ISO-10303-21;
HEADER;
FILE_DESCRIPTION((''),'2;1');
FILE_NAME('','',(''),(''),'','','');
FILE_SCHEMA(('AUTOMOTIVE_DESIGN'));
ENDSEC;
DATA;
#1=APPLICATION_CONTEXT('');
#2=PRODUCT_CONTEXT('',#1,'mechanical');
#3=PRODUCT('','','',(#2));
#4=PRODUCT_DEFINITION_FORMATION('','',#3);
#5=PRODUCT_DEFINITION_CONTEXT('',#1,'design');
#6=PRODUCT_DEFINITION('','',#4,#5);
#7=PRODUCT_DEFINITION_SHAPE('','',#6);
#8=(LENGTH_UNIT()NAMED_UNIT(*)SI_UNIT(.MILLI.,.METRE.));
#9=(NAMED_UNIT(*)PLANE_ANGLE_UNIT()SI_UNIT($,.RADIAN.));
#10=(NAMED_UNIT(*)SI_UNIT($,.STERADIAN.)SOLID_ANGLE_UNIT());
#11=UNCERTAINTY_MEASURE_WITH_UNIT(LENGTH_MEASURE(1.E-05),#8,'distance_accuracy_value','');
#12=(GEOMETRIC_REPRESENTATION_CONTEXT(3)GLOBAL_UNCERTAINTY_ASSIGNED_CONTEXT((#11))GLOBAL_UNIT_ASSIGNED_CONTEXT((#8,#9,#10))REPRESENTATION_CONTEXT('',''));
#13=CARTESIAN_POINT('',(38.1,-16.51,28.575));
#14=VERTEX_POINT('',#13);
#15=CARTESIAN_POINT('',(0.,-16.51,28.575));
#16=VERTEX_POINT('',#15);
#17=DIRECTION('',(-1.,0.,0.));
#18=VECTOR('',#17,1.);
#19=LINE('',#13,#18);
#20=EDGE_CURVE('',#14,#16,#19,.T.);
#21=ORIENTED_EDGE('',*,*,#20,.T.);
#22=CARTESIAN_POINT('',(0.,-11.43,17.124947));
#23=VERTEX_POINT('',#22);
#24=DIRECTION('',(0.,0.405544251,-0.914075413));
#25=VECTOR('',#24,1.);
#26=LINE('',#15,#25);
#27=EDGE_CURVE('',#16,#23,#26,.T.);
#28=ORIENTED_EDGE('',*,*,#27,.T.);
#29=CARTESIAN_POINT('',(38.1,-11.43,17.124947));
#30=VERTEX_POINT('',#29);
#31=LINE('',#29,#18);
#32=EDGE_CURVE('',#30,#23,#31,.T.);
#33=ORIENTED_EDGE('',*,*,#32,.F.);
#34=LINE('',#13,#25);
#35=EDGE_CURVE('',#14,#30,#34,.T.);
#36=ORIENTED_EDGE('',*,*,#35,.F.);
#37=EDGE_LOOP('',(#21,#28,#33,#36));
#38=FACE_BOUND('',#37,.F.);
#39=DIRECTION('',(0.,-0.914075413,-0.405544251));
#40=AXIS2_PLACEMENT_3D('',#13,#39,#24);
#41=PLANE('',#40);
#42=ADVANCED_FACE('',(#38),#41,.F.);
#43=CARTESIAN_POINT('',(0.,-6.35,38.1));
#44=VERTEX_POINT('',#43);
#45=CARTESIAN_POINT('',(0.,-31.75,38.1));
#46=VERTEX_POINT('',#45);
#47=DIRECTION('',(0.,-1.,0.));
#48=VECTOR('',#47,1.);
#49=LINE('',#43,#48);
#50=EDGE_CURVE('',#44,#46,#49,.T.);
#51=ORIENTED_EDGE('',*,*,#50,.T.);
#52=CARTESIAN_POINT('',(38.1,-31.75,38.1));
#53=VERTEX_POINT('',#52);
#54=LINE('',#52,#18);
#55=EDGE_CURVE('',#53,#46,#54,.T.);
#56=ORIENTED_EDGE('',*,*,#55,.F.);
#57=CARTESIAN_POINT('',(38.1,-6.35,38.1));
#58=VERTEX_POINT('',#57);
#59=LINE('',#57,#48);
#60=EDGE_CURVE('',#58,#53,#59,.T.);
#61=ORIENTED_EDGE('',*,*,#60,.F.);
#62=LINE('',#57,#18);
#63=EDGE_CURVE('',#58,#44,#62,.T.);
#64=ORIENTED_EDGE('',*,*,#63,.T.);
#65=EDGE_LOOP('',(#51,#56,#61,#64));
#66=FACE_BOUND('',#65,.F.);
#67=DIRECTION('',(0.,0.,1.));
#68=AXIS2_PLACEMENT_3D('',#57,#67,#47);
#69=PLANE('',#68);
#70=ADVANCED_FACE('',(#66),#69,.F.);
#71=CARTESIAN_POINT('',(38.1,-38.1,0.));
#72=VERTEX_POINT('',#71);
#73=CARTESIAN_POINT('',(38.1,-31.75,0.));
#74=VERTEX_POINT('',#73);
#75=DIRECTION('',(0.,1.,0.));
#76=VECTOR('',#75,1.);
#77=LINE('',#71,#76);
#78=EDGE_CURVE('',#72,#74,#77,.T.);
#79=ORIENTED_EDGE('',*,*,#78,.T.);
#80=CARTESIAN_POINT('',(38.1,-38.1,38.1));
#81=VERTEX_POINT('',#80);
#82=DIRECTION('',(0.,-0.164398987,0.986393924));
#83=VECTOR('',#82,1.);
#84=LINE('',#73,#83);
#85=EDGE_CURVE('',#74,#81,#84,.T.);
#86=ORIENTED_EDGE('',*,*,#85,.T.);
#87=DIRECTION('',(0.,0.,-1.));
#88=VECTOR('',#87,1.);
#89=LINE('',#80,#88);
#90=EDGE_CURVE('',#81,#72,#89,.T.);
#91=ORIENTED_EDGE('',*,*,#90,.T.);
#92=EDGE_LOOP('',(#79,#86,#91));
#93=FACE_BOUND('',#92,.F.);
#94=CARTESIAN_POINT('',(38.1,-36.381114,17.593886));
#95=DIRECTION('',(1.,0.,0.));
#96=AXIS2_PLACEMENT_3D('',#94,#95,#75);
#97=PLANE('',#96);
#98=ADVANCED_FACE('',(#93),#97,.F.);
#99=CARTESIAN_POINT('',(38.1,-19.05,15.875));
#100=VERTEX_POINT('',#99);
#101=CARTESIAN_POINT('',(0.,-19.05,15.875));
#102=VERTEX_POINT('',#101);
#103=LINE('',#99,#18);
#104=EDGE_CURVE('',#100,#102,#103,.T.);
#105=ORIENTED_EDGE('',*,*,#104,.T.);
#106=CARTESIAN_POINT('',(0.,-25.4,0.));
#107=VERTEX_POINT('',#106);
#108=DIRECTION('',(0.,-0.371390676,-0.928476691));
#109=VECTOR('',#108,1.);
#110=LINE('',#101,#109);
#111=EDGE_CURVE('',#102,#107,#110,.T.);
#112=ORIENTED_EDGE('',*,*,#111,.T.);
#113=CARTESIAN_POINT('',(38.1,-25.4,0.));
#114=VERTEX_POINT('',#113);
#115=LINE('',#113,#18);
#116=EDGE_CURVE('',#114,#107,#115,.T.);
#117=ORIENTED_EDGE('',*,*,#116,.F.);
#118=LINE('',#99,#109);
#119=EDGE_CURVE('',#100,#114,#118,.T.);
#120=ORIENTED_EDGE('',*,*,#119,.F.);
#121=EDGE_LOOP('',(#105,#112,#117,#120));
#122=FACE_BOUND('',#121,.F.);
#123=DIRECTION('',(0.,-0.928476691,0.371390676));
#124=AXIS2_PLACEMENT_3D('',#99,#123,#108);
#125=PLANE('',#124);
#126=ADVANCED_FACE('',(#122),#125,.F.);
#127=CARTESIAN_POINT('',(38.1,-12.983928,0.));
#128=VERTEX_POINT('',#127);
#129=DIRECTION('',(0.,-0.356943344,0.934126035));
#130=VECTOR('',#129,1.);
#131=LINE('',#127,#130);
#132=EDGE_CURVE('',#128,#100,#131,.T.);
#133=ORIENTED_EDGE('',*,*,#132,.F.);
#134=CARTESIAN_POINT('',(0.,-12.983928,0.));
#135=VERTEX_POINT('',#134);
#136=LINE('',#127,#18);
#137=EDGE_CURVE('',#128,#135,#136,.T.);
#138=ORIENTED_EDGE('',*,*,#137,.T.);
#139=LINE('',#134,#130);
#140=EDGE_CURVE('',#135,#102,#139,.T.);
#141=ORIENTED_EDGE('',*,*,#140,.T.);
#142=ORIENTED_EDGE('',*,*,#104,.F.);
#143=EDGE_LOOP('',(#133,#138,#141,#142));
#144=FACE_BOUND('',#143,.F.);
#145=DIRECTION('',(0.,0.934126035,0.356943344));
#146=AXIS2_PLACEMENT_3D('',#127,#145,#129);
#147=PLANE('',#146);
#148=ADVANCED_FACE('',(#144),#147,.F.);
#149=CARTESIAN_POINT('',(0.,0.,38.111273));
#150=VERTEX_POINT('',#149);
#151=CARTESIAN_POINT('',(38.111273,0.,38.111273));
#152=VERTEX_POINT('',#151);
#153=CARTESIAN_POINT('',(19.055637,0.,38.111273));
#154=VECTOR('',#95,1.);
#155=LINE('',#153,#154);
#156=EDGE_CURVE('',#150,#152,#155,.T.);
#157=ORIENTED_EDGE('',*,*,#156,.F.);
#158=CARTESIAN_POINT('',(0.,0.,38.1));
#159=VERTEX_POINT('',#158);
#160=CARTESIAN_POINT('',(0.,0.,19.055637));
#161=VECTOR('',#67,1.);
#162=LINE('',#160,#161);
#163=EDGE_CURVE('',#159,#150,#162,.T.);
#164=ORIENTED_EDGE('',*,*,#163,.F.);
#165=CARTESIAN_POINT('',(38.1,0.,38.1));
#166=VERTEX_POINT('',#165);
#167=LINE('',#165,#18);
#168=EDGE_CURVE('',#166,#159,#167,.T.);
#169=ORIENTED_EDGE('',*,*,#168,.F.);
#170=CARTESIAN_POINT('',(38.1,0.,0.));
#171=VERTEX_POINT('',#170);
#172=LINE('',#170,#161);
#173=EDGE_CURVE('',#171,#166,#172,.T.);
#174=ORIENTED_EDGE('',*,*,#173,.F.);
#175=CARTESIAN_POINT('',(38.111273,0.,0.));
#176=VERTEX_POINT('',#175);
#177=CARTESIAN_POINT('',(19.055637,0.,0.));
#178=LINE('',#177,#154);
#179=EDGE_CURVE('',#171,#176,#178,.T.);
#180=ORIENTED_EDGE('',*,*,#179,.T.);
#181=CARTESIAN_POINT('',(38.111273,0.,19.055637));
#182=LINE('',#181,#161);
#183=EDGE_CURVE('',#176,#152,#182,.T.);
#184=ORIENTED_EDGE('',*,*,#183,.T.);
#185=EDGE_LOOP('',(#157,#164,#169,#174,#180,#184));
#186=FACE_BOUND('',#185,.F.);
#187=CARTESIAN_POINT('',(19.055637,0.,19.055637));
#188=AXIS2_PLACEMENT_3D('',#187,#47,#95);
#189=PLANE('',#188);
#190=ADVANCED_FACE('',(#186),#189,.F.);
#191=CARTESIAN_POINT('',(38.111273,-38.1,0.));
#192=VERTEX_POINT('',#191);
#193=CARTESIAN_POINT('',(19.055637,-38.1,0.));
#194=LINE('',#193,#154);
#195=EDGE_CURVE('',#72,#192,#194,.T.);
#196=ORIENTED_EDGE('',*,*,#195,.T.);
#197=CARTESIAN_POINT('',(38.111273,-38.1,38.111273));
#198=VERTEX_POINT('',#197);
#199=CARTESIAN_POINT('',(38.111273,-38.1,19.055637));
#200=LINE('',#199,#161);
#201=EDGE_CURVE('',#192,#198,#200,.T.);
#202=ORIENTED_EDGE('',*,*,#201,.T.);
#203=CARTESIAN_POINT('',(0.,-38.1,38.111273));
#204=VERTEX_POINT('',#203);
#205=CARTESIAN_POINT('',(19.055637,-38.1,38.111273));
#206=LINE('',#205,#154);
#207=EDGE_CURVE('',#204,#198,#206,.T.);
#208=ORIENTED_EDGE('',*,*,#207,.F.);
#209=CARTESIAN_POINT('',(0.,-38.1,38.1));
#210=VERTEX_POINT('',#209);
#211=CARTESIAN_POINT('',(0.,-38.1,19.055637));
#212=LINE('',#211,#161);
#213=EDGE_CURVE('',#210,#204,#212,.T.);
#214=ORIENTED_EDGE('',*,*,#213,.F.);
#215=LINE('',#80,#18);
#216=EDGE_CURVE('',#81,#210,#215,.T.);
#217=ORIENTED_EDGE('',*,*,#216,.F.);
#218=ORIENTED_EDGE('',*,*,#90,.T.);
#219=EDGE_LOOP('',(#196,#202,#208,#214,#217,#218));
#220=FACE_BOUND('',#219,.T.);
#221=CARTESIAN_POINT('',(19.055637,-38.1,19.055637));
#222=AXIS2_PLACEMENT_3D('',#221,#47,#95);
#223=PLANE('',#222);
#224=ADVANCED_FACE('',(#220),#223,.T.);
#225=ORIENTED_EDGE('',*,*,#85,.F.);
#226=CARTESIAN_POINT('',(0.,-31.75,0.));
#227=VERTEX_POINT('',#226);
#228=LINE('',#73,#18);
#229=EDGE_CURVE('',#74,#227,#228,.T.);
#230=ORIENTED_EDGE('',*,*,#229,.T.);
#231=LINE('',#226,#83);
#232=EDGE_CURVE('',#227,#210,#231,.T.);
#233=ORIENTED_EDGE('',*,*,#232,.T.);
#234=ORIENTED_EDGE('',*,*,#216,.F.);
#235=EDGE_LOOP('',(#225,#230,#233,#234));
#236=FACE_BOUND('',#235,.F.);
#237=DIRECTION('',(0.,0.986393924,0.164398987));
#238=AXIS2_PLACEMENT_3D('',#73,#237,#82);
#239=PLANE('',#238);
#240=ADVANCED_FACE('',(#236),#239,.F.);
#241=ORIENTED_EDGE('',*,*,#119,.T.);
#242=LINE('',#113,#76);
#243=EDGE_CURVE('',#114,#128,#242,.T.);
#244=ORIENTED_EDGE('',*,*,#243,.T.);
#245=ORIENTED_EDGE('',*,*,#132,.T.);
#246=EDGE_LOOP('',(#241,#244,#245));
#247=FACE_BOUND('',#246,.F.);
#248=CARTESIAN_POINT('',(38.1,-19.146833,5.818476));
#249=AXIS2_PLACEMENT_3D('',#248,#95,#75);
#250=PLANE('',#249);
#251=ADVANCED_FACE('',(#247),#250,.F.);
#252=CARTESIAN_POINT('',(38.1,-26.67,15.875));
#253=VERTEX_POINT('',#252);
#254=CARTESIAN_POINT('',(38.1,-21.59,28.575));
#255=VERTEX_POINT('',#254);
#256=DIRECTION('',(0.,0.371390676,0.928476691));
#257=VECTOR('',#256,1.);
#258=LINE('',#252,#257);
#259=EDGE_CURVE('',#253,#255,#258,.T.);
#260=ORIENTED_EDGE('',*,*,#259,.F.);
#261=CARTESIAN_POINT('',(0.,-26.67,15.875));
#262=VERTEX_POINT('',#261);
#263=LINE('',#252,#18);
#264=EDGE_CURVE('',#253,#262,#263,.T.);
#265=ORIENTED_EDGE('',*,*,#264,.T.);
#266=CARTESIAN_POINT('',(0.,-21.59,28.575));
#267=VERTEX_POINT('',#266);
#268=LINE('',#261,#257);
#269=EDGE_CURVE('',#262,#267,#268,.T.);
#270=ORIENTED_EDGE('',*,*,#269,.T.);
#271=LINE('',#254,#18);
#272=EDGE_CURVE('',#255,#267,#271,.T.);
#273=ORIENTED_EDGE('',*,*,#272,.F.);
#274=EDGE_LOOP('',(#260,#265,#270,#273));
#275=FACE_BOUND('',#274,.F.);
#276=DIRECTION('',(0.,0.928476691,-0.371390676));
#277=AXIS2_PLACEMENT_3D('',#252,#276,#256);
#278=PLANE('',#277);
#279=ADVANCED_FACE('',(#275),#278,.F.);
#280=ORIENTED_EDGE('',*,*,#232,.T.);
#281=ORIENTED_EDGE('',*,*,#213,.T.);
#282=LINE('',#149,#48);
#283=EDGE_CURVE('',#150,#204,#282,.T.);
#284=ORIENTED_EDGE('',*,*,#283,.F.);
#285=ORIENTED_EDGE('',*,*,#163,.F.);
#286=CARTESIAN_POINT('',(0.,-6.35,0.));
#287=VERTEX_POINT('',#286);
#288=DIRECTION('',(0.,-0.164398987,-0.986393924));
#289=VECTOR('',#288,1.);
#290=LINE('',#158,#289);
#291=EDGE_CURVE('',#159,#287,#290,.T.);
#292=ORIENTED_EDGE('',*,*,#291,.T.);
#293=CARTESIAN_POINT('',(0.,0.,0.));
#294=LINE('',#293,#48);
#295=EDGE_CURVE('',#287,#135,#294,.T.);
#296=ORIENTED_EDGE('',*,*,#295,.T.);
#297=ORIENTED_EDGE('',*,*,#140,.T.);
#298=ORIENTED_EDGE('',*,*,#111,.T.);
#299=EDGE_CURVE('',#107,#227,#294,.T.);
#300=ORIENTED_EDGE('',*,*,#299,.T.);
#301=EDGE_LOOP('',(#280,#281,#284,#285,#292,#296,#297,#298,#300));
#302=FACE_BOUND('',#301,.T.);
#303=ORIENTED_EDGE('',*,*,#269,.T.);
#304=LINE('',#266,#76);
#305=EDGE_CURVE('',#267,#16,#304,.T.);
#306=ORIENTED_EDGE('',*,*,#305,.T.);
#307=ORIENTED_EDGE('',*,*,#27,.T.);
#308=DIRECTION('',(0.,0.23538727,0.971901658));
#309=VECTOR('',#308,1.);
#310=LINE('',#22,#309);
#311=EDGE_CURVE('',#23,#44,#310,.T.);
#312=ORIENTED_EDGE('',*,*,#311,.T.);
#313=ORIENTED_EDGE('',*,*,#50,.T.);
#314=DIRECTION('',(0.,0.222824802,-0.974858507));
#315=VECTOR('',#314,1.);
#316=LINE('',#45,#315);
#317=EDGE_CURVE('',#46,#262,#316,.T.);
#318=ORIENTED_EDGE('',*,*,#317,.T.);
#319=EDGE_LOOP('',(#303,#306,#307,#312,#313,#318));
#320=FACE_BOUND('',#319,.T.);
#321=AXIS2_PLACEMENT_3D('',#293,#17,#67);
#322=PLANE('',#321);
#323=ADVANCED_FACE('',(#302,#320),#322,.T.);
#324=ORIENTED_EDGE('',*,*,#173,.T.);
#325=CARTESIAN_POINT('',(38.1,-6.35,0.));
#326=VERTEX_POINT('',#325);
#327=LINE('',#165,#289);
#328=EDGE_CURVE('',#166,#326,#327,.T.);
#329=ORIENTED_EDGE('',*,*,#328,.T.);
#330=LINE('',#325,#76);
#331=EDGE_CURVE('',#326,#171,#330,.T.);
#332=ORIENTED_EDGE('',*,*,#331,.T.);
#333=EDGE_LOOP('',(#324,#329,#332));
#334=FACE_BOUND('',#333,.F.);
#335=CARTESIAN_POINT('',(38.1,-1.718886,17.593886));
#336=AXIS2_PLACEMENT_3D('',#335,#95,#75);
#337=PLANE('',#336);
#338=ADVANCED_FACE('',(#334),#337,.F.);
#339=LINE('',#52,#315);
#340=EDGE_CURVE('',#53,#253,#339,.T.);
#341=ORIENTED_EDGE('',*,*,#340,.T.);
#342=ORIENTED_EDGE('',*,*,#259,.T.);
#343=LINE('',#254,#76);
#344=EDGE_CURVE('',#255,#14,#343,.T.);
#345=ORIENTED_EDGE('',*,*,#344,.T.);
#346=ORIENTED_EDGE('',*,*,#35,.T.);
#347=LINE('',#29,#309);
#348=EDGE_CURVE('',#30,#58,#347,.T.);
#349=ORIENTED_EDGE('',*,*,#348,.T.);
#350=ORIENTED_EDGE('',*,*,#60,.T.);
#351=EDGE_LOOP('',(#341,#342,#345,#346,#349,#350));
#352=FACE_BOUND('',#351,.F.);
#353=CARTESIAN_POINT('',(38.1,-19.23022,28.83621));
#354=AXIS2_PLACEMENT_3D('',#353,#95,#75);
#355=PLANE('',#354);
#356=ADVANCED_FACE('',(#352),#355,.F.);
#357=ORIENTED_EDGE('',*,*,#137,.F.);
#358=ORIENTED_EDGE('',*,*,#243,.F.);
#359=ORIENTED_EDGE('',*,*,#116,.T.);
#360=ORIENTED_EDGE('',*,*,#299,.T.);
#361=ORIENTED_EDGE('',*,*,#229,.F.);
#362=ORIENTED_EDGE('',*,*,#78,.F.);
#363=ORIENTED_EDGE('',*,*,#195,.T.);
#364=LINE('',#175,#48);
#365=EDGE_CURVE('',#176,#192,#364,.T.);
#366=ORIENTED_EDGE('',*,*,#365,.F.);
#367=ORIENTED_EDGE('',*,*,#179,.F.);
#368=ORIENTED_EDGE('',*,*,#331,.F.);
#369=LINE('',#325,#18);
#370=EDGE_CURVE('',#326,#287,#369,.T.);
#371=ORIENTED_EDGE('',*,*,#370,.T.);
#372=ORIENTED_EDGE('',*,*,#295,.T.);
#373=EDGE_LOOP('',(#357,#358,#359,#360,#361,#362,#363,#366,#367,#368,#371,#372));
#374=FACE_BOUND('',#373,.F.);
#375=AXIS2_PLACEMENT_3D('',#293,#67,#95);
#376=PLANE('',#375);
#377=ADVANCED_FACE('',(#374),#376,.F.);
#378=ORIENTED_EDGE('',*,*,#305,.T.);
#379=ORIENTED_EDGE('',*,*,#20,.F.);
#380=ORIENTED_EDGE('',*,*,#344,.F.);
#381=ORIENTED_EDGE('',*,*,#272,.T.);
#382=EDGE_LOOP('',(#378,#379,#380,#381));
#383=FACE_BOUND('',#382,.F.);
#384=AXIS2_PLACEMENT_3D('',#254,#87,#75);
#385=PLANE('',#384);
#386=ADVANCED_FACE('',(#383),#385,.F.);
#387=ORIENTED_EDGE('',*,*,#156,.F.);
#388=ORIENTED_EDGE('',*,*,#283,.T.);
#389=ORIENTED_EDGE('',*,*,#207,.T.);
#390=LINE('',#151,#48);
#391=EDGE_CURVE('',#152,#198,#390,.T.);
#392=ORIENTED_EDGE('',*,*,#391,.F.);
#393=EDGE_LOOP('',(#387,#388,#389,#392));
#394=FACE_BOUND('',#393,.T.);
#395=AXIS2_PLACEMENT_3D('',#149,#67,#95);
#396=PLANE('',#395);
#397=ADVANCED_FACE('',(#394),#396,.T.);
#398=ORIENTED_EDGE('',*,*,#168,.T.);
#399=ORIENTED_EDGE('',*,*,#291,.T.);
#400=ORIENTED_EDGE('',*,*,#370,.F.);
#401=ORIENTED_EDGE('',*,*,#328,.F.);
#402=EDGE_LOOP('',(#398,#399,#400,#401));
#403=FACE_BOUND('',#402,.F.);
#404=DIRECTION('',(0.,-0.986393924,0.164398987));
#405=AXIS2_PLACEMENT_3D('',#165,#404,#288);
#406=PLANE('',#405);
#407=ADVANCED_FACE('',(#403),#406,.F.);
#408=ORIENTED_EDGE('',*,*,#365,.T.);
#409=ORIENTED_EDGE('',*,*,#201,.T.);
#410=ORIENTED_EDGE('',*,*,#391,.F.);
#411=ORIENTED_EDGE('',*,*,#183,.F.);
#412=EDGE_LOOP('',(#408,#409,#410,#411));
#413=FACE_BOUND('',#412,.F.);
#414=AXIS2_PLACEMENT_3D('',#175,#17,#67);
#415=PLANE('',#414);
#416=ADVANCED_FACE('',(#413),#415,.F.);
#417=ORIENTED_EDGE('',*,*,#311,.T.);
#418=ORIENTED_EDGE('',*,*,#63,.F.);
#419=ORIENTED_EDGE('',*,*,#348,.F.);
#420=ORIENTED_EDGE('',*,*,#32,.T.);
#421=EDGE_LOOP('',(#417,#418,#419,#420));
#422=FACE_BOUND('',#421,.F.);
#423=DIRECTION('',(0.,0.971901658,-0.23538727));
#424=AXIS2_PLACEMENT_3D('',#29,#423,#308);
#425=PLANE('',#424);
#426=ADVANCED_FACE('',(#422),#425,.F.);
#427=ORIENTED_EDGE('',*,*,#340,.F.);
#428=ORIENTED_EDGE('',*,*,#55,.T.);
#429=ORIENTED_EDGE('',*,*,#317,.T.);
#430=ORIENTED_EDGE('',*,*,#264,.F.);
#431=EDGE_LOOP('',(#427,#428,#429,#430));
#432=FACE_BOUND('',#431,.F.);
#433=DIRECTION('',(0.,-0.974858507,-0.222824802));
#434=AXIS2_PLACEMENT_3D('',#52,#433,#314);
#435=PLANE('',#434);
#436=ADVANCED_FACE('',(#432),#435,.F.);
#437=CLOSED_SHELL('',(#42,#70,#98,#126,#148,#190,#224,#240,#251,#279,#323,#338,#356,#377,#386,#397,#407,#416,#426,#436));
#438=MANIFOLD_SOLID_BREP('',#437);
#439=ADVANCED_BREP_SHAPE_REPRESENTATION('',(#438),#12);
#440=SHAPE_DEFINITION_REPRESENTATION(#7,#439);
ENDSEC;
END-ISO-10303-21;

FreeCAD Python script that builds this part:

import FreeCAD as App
import Part
import Sketcher
Q = App.Units.Quantity

doc = App.newDocument("Part")
body = doc.addObject("PartDesign::Body", "Body")

sketch1 = body.newObject("Sketcher::SketchObject", "Sketch")
sketch1.AttachmentSupport = (doc.getObject("XZ_Plane"), [""])
sketch1.MapMode = "FlatFace"
sketch1.addGeometry([
    Part.LineSegment(App.Vector(0, 38, 0), App.Vector(0, 0, 0)),
    Part.LineSegment(App.Vector(0, 0, 0), App.Vector(38, 0, 0)),
    Part.LineSegment(App.Vector(38, 0, 0), App.Vector(38, 38, 0)),
    Part.LineSegment(App.Vector(38, 38, 0), App.Vector(0, 38, 0)),
], False)
sketch1.addConstraint([
    Sketcher.Constraint("Coincident", 0, 2, 1, 1),
    Sketcher.Constraint("Coincident", 1, 2, 2, 1),
    Sketcher.Constraint("Coincident", 2, 2, 3, 1),
    Sketcher.Constraint("Coincident", 3, 2, 0, 1),
    Sketcher.Constraint("Vertical", 0),
    Sketcher.Constraint("Horizontal", 1),
    Sketcher.Constraint("Vertical", 2),
    Sketcher.Constraint("Horizontal", 3),
    Sketcher.Constraint("Coincident", 0, 2, -1, 1),
    Sketcher.Constraint("Equal", 3, 0),
    Sketcher.Constraint("DistanceX", 1, 1, 1, 2, 38.111273),
])
pad1 = body.newObject("PartDesign::Pad", "Pad")
pad1.Profile = sketch1
pad1.Length = Q("1.5 in")

sketch2 = body.newObject("Sketcher::SketchObject", "Sketch001")
sketch2.AttachmentSupport = (doc.getObject("YZ_Plane"), [""])
sketch2.MapMode = "FlatFace"
sketch2.AttachmentOffset = App.Placement(App.Vector(0, 0, 1.5 * 25.4), App.Rotation())
sketch2.addGeometry([
    Part.LineSegment(App.Vector(-6, 0, 0), App.Vector(0, 0, 0)),
    Part.LineSegment(App.Vector(0, 0, 0), App.Vector(0, 38, 0)),
    Part.LineSegment(App.Vector(0, 38, 0), App.Vector(-6, 0, 0)),
    Part.LineSegment(App.Vector(-11, 17, 0), App.Vector(-6, 38, 0)),
    Part.LineSegment(App.Vector(-6, 38, 0), App.Vector(-32, 38, 0)),
    Part.LineSegment(App.Vector(-32, 38, 0), App.Vector(-27, 16, 0)),
    Part.LineSegment(App.Vector(-27, 16, 0), App.Vector(-22, 29, 0)),
    Part.LineSegment(App.Vector(-22, 29, 0), App.Vector(-17, 29, 0)),
    Part.LineSegment(App.Vector(-17, 29, 0), App.Vector(-11, 17, 0)),
    Part.LineSegment(App.Vector(-32, 0, 0), App.Vector(-38, 38, 0)),
    Part.LineSegment(App.Vector(-38, 38, 0), App.Vector(-38, 0, 0)),
    Part.LineSegment(App.Vector(-38, 0, 0), App.Vector(-32, 0, 0)),
    Part.LineSegment(App.Vector(-25, 0, 0), App.Vector(-13, 0, 0)),
    Part.LineSegment(App.Vector(-13, 0, 0), App.Vector(-19, 16, 0)),
    Part.LineSegment(App.Vector(-19, 16, 0), App.Vector(-25, 0, 0)),
], False)
sketch2.addConstraint([
    Sketcher.Constraint("Coincident", 0, 2, 1, 1),
    Sketcher.Constraint("Coincident", 1, 2, 2, 1),
    Sketcher.Constraint("Coincident", 2, 2, 0, 1),
    Sketcher.Constraint("Coincident", 3, 2, 4, 1),
    Sketcher.Constraint("Coincident", 4, 2, 5, 1),
    Sketcher.Constraint("Coincident", 5, 2, 6, 1),
    Sketcher.Constraint("Coincident", 6, 2, 7, 1),
    Sketcher.Constraint("Coincident", 7, 2, 8, 1),
    Sketcher.Constraint("Coincident", 8, 2, 3, 1),
    Sketcher.Constraint("Coincident", 9, 2, 10, 1),
    Sketcher.Constraint("Coincident", 10, 2, 11, 1),
    Sketcher.Constraint("Coincident", 11, 2, 9, 1),
    Sketcher.Constraint("Coincident", 12, 2, 13, 1),
    Sketcher.Constraint("Coincident", 13, 2, 14, 1),
    Sketcher.Constraint("Coincident", 14, 2, 12, 1),
    Sketcher.Constraint("Horizontal", 0),
    Sketcher.Constraint("Vertical", 1),
    Sketcher.Constraint("Horizontal", 4),
    Sketcher.Constraint("Horizontal", 7),
    Sketcher.Constraint("Vertical", 10),
    Sketcher.Constraint("Horizontal", 11),
    Sketcher.Constraint("Horizontal", 12),
    Sketcher.Constraint("Coincident", 0, 2, -1, 1),
    Sketcher.Constraint("PointOnObject", 10, 2, -1),
    Sketcher.Constraint("PointOnObject", 12, 2, -1),
    Sketcher.Constraint("Parallel", 6, 14),
    Sketcher.Constraint("Horizontal", 1, 2, 3, 2),
    Sketcher.Constraint("Horizontal", 4, 2, 9, 2),
    Sketcher.Constraint("Horizontal", 5, 2, 13, 2),
    Sketcher.Constraint("Vertical", 2, 2, 3, 2),
    Sketcher.Constraint("Vertical", 4, 2, 11, 2),
    Sketcher.Constraint("Equal", 0, 11),
    Sketcher.Constraint("DistanceX", 4, 2, 4, 1, Q("1 in")),
    Sketcher.Constraint("DistanceX", 7, 1, 7, 2, Q("0.2 in")),
    Sketcher.Constraint("DistanceY", 1, 1, 1, 2, Q("1.5 in")),
    Sketcher.Constraint("DistanceX", 14, 2, -1, 1, Q("1 in")),
    Sketcher.Constraint("DistanceX", 0, 1, 0, 2, Q("0.25 in")),
    Sketcher.Constraint("DistanceX", 4, 2, 5, 2, Q("0.2 in")),
    Sketcher.Constraint("DistanceX", 5, 2, 6, 2, Q("0.2 in")),
    Sketcher.Constraint("DistanceY", 5, 2, 6, 2, Q("0.5 in")),
    Sketcher.Constraint("DistanceX", 7, 2, 8, 2, Q("0.2 in")),
    Sketcher.Constraint("DistanceX", 5, 2, 13, 2, Q("0.3 in")),
    Sketcher.Constraint("DistanceX", 12, 1, 12, 2, 12.416072),
    Sketcher.Constraint("Distance", 3, 21.581456),
])
pocket1 = body.newObject("PartDesign::Pocket", "Pocket")
pocket1.Profile = sketch2
pocket1.Length = Q("1.5 in")

doc.recompute()
